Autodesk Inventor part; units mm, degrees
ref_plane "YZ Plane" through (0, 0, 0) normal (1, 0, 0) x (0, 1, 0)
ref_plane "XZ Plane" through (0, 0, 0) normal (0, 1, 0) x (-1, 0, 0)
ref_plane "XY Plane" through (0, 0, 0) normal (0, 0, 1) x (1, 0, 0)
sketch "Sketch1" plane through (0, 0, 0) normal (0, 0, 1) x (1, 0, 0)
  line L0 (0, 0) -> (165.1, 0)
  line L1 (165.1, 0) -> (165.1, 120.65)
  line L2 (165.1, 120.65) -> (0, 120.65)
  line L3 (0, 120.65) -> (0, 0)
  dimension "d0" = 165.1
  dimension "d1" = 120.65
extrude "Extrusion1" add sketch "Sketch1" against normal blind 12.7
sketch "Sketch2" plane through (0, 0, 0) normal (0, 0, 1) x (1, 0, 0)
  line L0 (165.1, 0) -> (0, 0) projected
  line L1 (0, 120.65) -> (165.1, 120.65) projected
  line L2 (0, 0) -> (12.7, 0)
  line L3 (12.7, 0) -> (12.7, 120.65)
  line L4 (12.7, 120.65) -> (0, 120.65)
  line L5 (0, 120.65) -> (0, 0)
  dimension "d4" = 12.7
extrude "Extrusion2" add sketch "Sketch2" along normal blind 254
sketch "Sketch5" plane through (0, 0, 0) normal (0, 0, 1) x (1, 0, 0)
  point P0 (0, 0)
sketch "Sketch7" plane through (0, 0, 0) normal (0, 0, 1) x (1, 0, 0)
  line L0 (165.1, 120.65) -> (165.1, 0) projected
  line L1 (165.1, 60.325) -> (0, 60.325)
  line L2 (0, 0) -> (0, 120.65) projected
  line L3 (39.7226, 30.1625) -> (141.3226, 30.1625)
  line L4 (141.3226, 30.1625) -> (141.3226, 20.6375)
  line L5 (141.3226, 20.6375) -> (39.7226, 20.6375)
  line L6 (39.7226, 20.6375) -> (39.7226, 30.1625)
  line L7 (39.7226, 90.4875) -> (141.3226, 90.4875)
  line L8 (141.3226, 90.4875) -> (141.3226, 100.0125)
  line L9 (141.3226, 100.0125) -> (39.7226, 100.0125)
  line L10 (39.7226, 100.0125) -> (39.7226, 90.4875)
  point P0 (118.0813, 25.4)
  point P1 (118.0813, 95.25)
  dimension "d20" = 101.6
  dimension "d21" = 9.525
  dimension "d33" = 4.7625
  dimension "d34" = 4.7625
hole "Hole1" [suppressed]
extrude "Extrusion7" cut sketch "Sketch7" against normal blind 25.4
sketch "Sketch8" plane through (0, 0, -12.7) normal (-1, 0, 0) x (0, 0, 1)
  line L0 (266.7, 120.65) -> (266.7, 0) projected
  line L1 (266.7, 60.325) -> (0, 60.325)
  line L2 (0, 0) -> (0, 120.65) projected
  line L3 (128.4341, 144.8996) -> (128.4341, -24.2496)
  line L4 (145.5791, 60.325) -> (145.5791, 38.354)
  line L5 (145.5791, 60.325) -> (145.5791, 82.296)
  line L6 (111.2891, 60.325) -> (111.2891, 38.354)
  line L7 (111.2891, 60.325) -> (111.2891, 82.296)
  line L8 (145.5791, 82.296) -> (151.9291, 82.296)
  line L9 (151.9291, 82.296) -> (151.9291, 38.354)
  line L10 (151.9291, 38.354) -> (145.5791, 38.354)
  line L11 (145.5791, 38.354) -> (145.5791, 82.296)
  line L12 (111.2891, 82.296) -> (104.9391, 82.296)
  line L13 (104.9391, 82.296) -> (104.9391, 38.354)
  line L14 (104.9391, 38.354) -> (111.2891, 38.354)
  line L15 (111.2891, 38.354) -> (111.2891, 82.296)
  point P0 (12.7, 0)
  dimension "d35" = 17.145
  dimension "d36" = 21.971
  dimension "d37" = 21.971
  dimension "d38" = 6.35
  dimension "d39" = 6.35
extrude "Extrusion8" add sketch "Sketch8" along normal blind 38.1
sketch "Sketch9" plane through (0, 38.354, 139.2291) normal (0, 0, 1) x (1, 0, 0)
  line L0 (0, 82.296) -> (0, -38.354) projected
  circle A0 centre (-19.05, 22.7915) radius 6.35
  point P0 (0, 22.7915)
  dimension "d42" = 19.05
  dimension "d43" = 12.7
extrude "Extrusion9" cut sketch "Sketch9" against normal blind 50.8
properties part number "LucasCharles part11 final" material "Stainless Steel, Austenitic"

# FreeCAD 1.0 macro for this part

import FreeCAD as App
import Part
import Sketcher
Q = App.Units.Quantity

doc = App.newDocument("Part")
body = doc.addObject("PartDesign::Body", "Body")

sketch1 = doc.addObject("Sketcher::SketchObject", "Sketch")
body.addObject(sketch1)
sketch1.AttachmentSupport = (doc.XY_Plane, [""])
sketch1.MapMode = "FlatFace"
sketch1.addGeometry([
    Part.LineSegment(App.Vector(0, 121, 0), App.Vector(0, 0, 0)),
    Part.LineSegment(App.Vector(0, 0, 0), App.Vector(165, 0, 0)),
    Part.LineSegment(App.Vector(165, 0, 0), App.Vector(165, 121, 0)),
    Part.LineSegment(App.Vector(165, 121, 0), App.Vector(0, 121, 0)),
], False)
sketch1.addConstraint([
    Sketcher.Constraint("Coincident", 0, 2, 1, 1),
    Sketcher.Constraint("Coincident", 1, 2, 2, 1),
    Sketcher.Constraint("Coincident", 2, 2, 3, 1),
    Sketcher.Constraint("Coincident", 3, 2, 0, 1),
    Sketcher.Constraint("Vertical", 0),
    Sketcher.Constraint("Horizontal", 1),
    Sketcher.Constraint("Vertical", 2),
    Sketcher.Constraint("Horizontal", 3),
    Sketcher.Constraint("Coincident", 0, 2, -1, 1),
    Sketcher.Constraint("DistanceX", 1, 1, 1, 2, Q("6.5 in")),
    Sketcher.Constraint("DistanceY", 0, 2, 0, 1, Q("4.75 in")),
])
pad1 = doc.addObject("PartDesign::Pad", "Pad")
body.addObject(pad1)
pad1.Profile = sketch1
pad1.Length = Q("0.5 in")
pad1.Reversed = True

sketch2 = doc.addObject("Sketcher::SketchObject", "Sketch001")
body.addObject(sketch2)
sketch2.AttachmentSupport = (doc.XY_Plane, [""])
sketch2.MapMode = "FlatFace"
sketch2.addGeometry([
    Part.LineSegment(App.Vector(0, 0, 0), App.Vector(13, 0, 0)),
    Part.LineSegment(App.Vector(13, 0, 0), App.Vector(13, 121, 0)),
    Part.LineSegment(App.Vector(13, 121, 0), App.Vector(0, 121, 0)),
    Part.LineSegment(App.Vector(0, 121, 0), App.Vector(0, 0, 0)),
], False)
sketch2.addConstraint([
    Sketcher.Constraint("Coincident", 0, 2, 1, 1),
    Sketcher.Constraint("Coincident", 1, 2, 2, 1),
    Sketcher.Constraint("Coincident", 2, 2, 3, 1),
    Sketcher.Constraint("Coincident", 3, 2, 0, 1),
    Sketcher.Constraint("Horizontal", 0),
    Sketcher.Constraint("Vertical", 1),
    Sketcher.Constraint("Horizontal", 2),
    Sketcher.Constraint("Vertical", 3),
    Sketcher.Constraint("Coincident", 3, 2, -1, 1),
    Sketcher.Constraint("DistanceX", 0, 1, 0, 2, Q("0.5 in")),
    Sketcher.Constraint("DistanceY", 1, 1, 1, 2, Q("4.75 in")),
])
pad2 = doc.addObject("PartDesign::Pad", "Pad001")
body.addObject(pad2)
pad2.Profile = sketch2
pad2.Length = Q("10 in")

sketch3 = doc.addObject("Sketcher::SketchObject", "Sketch002")
body.addObject(sketch3)
sketch3.AttachmentSupport = (doc.XY_Plane, [""])
sketch3.MapMode = "FlatFace"
sketch3.addGeometry([
    Part.LineSegment(App.Vector(141, 30, 0), App.Vector(40, 30, 0)),
    Part.LineSegment(App.Vector(40, 30, 0), App.Vector(40, 21, 0)),
    Part.LineSegment(App.Vector(40, 21, 0), App.Vector(141, 21, 0)),
    Part.LineSegment(App.Vector(141, 21, 0), App.Vector(141, 30, 0)),
    Part.LineSegment(App.Vector(40, 100, 0), App.Vector(40, 90, 0)),
    Part.LineSegment(App.Vector(40, 90, 0), App.Vector(141, 90, 0)),
    Part.LineSegment(App.Vector(141, 90, 0), App.Vector(141, 100, 0)),
    Part.LineSegment(App.Vector(141, 100, 0), App.Vector(40, 100, 0)),
], False)
sketch3.addConstraint([
    Sketcher.Constraint("Coincident", 0, 2, 1, 1),
    Sketcher.Constraint("Coincident", 1, 2, 2, 1),
    Sketcher.Constraint("Coincident", 2, 2, 3, 1),
    Sketcher.Constraint("Coincident", 3, 2, 0, 1),
    Sketcher.Constraint("Coincident", 4, 2, 5, 1),
    Sketcher.Constraint("Coincident", 5, 2, 6, 1),
    Sketcher.Constraint("Coincident", 6, 2, 7, 1),
    Sketcher.Constraint("Coincident", 7, 2, 4, 1),
    Sketcher.Constraint("Horizontal", 0),
    Sketcher.Constraint("Vertical", 1),
    Sketcher.Constraint("Horizontal", 2),
    Sketcher.Constraint("Vertical", 3),
    Sketcher.Constraint("Vertical", 4),
    Sketcher.Constraint("Horizontal", 5),
    Sketcher.Constraint("Vertical", 6),
    Sketcher.Constraint("Horizontal", 7),
    Sketcher.Constraint("Vertical", 1, 2, 4, 2),
    Sketcher.Constraint("Vertical", 3, 2, 5, 2),
    Sketcher.Constraint("Equal", 3, 4),
    Sketcher.Constraint("DistanceX", 0, 2, 0, 1, Q("4 in")),
    Sketcher.Constraint("DistanceY", 1, 2, 1, 1, Q("0.375 in")),
    Sketcher.Constraint("DistanceY", 1, 2, 4, 2, Q("2.75 in")),
    Sketcher.Constraint("DistanceY", -1, 1, 0, 2, Q("1.1875 in")),
    Sketcher.Constraint("DistanceX", -1, 1, 0, 2, 39.7226),
])
pocket1 = doc.addObject("PartDesign::Pocket", "Pocket")
body.addObject(pocket1)
pocket1.Profile = sketch3
pocket1.Length = Q("1 in")

sketch4 = doc.addObject("Sketcher::SketchObject", "Sketch003")
body.addObject(sketch4)
sketch4.AttachmentSupport = (doc.YZ_Plane, [""])
sketch4.MapMode = "FlatFace"
sketch4.addGeometry([
    Part.LineSegment(App.Vector(38, 139, 0), App.Vector(82, 139, 0)),
    Part.LineSegment(App.Vector(82, 139, 0), App.Vector(82, 133, 0)),
    Part.LineSegment(App.Vector(82, 133, 0), App.Vector(38, 133, 0)),
    Part.LineSegment(App.Vector(38, 133, 0), App.Vector(38, 139, 0)),
    Part.LineSegment(App.Vector(38, 99, 0), App.Vector(82, 99, 0)),
    Part.LineSegment(App.Vector(82, 99, 0), App.Vector(82, 92, 0)),
    Part.LineSegment(App.Vector(82, 92, 0), App.Vector(38, 92, 0)),
    Part.LineSegment(App.Vector(38, 92, 0), App.Vector(38, 99, 0)),
], False)
sketch4.addConstraint([
    Sketcher.Constraint("Coincident", 0, 2, 1, 1),
    Sketcher.Constraint("Coincident", 1, 2, 2, 1),
    Sketcher.Constraint("Coincident", 2, 2, 3, 1),
    Sketcher.Constraint("Coincident", 3, 2, 0, 1),
    Sketcher.Constraint("Coincident", 4, 2, 5, 1),
    Sketcher.Constraint("Coincident", 5, 2, 6, 1),
    Sketcher.Constraint("Coincident", 6, 2, 7, 1),
    Sketcher.Constraint("Coincident", 7, 2, 4, 1),
    Sketcher.Constraint("Horizontal", 0),
    Sketcher.Constraint("Vertical", 1),
    Sketcher.Constraint("Horizontal", 2),
    Sketcher.Constraint("Vertical", 3),
    Sketcher.Constraint("Horizontal", 4),
    Sketcher.Constraint("Vertical", 5),
    Sketcher.Constraint("Horizontal", 6),
    Sketcher.Constraint("Vertical", 7),
    Sketcher.Constraint("Vertical", 1, 2, 4, 2),
    Sketcher.Constraint("Vertical", 3, 2, 6, 2),
    Sketcher.Constraint("Equal", 3, 5),
    Sketcher.Constraint("DistanceY", 1, 2, 1, 1, Q("0.25 in")),
    Sketcher.Constraint("DistanceX", 0, 1, 0, 2, Q("1.73 in")),
    Sketcher.Constraint("DistanceY", 4, 2, 0, 2, Q("1.6 in")),
    Sketcher.Constraint("DistanceX", -1, 1, 0, 2, Q("3.24 in")),
    Sketcher.Constraint("DistanceY", -1, 1, 0, 2, 139.229),
])
pad3 = doc.addObject("PartDesign::Pad", "Pad002")
body.addObject(pad3)
pad3.Profile = sketch4
pad3.Length = Q("1.5 in")
pad3.Reversed = True

sketch5 = doc.addObject("Sketcher::SketchObject", "Sketch004")
body.addObject(sketch5)
sketch5.AttachmentSupport = (doc.XY_Plane, [""])
sketch5.MapMode = "FlatFace"
sketch5.AttachmentOffset = App.Placement(App.Vector(0, 0, 139.2291), App.Rotation())
sketch5.addGeometry(Part.Circle(App.Vector(-19, 61, 0), App.Vector(0, 0, 1), 6), False)
sketch5.addConstraint([
    Sketcher.Constraint("Diameter", 0, Q("0.5 in")),
    Sketcher.Constraint("DistanceX", 0, 3, -1, 1, Q("0.75 in")),
    Sketcher.Constraint("DistanceY", -1, 1, 0, 3, Q("2.4073 in")),
])
pocket2 = doc.addObject("PartDesign::Pocket", "Pocket001")
body.addObject(pocket2)
pocket2.Profile = sketch5
pocket2.Length = Q("2 in")

doc.recompute()
